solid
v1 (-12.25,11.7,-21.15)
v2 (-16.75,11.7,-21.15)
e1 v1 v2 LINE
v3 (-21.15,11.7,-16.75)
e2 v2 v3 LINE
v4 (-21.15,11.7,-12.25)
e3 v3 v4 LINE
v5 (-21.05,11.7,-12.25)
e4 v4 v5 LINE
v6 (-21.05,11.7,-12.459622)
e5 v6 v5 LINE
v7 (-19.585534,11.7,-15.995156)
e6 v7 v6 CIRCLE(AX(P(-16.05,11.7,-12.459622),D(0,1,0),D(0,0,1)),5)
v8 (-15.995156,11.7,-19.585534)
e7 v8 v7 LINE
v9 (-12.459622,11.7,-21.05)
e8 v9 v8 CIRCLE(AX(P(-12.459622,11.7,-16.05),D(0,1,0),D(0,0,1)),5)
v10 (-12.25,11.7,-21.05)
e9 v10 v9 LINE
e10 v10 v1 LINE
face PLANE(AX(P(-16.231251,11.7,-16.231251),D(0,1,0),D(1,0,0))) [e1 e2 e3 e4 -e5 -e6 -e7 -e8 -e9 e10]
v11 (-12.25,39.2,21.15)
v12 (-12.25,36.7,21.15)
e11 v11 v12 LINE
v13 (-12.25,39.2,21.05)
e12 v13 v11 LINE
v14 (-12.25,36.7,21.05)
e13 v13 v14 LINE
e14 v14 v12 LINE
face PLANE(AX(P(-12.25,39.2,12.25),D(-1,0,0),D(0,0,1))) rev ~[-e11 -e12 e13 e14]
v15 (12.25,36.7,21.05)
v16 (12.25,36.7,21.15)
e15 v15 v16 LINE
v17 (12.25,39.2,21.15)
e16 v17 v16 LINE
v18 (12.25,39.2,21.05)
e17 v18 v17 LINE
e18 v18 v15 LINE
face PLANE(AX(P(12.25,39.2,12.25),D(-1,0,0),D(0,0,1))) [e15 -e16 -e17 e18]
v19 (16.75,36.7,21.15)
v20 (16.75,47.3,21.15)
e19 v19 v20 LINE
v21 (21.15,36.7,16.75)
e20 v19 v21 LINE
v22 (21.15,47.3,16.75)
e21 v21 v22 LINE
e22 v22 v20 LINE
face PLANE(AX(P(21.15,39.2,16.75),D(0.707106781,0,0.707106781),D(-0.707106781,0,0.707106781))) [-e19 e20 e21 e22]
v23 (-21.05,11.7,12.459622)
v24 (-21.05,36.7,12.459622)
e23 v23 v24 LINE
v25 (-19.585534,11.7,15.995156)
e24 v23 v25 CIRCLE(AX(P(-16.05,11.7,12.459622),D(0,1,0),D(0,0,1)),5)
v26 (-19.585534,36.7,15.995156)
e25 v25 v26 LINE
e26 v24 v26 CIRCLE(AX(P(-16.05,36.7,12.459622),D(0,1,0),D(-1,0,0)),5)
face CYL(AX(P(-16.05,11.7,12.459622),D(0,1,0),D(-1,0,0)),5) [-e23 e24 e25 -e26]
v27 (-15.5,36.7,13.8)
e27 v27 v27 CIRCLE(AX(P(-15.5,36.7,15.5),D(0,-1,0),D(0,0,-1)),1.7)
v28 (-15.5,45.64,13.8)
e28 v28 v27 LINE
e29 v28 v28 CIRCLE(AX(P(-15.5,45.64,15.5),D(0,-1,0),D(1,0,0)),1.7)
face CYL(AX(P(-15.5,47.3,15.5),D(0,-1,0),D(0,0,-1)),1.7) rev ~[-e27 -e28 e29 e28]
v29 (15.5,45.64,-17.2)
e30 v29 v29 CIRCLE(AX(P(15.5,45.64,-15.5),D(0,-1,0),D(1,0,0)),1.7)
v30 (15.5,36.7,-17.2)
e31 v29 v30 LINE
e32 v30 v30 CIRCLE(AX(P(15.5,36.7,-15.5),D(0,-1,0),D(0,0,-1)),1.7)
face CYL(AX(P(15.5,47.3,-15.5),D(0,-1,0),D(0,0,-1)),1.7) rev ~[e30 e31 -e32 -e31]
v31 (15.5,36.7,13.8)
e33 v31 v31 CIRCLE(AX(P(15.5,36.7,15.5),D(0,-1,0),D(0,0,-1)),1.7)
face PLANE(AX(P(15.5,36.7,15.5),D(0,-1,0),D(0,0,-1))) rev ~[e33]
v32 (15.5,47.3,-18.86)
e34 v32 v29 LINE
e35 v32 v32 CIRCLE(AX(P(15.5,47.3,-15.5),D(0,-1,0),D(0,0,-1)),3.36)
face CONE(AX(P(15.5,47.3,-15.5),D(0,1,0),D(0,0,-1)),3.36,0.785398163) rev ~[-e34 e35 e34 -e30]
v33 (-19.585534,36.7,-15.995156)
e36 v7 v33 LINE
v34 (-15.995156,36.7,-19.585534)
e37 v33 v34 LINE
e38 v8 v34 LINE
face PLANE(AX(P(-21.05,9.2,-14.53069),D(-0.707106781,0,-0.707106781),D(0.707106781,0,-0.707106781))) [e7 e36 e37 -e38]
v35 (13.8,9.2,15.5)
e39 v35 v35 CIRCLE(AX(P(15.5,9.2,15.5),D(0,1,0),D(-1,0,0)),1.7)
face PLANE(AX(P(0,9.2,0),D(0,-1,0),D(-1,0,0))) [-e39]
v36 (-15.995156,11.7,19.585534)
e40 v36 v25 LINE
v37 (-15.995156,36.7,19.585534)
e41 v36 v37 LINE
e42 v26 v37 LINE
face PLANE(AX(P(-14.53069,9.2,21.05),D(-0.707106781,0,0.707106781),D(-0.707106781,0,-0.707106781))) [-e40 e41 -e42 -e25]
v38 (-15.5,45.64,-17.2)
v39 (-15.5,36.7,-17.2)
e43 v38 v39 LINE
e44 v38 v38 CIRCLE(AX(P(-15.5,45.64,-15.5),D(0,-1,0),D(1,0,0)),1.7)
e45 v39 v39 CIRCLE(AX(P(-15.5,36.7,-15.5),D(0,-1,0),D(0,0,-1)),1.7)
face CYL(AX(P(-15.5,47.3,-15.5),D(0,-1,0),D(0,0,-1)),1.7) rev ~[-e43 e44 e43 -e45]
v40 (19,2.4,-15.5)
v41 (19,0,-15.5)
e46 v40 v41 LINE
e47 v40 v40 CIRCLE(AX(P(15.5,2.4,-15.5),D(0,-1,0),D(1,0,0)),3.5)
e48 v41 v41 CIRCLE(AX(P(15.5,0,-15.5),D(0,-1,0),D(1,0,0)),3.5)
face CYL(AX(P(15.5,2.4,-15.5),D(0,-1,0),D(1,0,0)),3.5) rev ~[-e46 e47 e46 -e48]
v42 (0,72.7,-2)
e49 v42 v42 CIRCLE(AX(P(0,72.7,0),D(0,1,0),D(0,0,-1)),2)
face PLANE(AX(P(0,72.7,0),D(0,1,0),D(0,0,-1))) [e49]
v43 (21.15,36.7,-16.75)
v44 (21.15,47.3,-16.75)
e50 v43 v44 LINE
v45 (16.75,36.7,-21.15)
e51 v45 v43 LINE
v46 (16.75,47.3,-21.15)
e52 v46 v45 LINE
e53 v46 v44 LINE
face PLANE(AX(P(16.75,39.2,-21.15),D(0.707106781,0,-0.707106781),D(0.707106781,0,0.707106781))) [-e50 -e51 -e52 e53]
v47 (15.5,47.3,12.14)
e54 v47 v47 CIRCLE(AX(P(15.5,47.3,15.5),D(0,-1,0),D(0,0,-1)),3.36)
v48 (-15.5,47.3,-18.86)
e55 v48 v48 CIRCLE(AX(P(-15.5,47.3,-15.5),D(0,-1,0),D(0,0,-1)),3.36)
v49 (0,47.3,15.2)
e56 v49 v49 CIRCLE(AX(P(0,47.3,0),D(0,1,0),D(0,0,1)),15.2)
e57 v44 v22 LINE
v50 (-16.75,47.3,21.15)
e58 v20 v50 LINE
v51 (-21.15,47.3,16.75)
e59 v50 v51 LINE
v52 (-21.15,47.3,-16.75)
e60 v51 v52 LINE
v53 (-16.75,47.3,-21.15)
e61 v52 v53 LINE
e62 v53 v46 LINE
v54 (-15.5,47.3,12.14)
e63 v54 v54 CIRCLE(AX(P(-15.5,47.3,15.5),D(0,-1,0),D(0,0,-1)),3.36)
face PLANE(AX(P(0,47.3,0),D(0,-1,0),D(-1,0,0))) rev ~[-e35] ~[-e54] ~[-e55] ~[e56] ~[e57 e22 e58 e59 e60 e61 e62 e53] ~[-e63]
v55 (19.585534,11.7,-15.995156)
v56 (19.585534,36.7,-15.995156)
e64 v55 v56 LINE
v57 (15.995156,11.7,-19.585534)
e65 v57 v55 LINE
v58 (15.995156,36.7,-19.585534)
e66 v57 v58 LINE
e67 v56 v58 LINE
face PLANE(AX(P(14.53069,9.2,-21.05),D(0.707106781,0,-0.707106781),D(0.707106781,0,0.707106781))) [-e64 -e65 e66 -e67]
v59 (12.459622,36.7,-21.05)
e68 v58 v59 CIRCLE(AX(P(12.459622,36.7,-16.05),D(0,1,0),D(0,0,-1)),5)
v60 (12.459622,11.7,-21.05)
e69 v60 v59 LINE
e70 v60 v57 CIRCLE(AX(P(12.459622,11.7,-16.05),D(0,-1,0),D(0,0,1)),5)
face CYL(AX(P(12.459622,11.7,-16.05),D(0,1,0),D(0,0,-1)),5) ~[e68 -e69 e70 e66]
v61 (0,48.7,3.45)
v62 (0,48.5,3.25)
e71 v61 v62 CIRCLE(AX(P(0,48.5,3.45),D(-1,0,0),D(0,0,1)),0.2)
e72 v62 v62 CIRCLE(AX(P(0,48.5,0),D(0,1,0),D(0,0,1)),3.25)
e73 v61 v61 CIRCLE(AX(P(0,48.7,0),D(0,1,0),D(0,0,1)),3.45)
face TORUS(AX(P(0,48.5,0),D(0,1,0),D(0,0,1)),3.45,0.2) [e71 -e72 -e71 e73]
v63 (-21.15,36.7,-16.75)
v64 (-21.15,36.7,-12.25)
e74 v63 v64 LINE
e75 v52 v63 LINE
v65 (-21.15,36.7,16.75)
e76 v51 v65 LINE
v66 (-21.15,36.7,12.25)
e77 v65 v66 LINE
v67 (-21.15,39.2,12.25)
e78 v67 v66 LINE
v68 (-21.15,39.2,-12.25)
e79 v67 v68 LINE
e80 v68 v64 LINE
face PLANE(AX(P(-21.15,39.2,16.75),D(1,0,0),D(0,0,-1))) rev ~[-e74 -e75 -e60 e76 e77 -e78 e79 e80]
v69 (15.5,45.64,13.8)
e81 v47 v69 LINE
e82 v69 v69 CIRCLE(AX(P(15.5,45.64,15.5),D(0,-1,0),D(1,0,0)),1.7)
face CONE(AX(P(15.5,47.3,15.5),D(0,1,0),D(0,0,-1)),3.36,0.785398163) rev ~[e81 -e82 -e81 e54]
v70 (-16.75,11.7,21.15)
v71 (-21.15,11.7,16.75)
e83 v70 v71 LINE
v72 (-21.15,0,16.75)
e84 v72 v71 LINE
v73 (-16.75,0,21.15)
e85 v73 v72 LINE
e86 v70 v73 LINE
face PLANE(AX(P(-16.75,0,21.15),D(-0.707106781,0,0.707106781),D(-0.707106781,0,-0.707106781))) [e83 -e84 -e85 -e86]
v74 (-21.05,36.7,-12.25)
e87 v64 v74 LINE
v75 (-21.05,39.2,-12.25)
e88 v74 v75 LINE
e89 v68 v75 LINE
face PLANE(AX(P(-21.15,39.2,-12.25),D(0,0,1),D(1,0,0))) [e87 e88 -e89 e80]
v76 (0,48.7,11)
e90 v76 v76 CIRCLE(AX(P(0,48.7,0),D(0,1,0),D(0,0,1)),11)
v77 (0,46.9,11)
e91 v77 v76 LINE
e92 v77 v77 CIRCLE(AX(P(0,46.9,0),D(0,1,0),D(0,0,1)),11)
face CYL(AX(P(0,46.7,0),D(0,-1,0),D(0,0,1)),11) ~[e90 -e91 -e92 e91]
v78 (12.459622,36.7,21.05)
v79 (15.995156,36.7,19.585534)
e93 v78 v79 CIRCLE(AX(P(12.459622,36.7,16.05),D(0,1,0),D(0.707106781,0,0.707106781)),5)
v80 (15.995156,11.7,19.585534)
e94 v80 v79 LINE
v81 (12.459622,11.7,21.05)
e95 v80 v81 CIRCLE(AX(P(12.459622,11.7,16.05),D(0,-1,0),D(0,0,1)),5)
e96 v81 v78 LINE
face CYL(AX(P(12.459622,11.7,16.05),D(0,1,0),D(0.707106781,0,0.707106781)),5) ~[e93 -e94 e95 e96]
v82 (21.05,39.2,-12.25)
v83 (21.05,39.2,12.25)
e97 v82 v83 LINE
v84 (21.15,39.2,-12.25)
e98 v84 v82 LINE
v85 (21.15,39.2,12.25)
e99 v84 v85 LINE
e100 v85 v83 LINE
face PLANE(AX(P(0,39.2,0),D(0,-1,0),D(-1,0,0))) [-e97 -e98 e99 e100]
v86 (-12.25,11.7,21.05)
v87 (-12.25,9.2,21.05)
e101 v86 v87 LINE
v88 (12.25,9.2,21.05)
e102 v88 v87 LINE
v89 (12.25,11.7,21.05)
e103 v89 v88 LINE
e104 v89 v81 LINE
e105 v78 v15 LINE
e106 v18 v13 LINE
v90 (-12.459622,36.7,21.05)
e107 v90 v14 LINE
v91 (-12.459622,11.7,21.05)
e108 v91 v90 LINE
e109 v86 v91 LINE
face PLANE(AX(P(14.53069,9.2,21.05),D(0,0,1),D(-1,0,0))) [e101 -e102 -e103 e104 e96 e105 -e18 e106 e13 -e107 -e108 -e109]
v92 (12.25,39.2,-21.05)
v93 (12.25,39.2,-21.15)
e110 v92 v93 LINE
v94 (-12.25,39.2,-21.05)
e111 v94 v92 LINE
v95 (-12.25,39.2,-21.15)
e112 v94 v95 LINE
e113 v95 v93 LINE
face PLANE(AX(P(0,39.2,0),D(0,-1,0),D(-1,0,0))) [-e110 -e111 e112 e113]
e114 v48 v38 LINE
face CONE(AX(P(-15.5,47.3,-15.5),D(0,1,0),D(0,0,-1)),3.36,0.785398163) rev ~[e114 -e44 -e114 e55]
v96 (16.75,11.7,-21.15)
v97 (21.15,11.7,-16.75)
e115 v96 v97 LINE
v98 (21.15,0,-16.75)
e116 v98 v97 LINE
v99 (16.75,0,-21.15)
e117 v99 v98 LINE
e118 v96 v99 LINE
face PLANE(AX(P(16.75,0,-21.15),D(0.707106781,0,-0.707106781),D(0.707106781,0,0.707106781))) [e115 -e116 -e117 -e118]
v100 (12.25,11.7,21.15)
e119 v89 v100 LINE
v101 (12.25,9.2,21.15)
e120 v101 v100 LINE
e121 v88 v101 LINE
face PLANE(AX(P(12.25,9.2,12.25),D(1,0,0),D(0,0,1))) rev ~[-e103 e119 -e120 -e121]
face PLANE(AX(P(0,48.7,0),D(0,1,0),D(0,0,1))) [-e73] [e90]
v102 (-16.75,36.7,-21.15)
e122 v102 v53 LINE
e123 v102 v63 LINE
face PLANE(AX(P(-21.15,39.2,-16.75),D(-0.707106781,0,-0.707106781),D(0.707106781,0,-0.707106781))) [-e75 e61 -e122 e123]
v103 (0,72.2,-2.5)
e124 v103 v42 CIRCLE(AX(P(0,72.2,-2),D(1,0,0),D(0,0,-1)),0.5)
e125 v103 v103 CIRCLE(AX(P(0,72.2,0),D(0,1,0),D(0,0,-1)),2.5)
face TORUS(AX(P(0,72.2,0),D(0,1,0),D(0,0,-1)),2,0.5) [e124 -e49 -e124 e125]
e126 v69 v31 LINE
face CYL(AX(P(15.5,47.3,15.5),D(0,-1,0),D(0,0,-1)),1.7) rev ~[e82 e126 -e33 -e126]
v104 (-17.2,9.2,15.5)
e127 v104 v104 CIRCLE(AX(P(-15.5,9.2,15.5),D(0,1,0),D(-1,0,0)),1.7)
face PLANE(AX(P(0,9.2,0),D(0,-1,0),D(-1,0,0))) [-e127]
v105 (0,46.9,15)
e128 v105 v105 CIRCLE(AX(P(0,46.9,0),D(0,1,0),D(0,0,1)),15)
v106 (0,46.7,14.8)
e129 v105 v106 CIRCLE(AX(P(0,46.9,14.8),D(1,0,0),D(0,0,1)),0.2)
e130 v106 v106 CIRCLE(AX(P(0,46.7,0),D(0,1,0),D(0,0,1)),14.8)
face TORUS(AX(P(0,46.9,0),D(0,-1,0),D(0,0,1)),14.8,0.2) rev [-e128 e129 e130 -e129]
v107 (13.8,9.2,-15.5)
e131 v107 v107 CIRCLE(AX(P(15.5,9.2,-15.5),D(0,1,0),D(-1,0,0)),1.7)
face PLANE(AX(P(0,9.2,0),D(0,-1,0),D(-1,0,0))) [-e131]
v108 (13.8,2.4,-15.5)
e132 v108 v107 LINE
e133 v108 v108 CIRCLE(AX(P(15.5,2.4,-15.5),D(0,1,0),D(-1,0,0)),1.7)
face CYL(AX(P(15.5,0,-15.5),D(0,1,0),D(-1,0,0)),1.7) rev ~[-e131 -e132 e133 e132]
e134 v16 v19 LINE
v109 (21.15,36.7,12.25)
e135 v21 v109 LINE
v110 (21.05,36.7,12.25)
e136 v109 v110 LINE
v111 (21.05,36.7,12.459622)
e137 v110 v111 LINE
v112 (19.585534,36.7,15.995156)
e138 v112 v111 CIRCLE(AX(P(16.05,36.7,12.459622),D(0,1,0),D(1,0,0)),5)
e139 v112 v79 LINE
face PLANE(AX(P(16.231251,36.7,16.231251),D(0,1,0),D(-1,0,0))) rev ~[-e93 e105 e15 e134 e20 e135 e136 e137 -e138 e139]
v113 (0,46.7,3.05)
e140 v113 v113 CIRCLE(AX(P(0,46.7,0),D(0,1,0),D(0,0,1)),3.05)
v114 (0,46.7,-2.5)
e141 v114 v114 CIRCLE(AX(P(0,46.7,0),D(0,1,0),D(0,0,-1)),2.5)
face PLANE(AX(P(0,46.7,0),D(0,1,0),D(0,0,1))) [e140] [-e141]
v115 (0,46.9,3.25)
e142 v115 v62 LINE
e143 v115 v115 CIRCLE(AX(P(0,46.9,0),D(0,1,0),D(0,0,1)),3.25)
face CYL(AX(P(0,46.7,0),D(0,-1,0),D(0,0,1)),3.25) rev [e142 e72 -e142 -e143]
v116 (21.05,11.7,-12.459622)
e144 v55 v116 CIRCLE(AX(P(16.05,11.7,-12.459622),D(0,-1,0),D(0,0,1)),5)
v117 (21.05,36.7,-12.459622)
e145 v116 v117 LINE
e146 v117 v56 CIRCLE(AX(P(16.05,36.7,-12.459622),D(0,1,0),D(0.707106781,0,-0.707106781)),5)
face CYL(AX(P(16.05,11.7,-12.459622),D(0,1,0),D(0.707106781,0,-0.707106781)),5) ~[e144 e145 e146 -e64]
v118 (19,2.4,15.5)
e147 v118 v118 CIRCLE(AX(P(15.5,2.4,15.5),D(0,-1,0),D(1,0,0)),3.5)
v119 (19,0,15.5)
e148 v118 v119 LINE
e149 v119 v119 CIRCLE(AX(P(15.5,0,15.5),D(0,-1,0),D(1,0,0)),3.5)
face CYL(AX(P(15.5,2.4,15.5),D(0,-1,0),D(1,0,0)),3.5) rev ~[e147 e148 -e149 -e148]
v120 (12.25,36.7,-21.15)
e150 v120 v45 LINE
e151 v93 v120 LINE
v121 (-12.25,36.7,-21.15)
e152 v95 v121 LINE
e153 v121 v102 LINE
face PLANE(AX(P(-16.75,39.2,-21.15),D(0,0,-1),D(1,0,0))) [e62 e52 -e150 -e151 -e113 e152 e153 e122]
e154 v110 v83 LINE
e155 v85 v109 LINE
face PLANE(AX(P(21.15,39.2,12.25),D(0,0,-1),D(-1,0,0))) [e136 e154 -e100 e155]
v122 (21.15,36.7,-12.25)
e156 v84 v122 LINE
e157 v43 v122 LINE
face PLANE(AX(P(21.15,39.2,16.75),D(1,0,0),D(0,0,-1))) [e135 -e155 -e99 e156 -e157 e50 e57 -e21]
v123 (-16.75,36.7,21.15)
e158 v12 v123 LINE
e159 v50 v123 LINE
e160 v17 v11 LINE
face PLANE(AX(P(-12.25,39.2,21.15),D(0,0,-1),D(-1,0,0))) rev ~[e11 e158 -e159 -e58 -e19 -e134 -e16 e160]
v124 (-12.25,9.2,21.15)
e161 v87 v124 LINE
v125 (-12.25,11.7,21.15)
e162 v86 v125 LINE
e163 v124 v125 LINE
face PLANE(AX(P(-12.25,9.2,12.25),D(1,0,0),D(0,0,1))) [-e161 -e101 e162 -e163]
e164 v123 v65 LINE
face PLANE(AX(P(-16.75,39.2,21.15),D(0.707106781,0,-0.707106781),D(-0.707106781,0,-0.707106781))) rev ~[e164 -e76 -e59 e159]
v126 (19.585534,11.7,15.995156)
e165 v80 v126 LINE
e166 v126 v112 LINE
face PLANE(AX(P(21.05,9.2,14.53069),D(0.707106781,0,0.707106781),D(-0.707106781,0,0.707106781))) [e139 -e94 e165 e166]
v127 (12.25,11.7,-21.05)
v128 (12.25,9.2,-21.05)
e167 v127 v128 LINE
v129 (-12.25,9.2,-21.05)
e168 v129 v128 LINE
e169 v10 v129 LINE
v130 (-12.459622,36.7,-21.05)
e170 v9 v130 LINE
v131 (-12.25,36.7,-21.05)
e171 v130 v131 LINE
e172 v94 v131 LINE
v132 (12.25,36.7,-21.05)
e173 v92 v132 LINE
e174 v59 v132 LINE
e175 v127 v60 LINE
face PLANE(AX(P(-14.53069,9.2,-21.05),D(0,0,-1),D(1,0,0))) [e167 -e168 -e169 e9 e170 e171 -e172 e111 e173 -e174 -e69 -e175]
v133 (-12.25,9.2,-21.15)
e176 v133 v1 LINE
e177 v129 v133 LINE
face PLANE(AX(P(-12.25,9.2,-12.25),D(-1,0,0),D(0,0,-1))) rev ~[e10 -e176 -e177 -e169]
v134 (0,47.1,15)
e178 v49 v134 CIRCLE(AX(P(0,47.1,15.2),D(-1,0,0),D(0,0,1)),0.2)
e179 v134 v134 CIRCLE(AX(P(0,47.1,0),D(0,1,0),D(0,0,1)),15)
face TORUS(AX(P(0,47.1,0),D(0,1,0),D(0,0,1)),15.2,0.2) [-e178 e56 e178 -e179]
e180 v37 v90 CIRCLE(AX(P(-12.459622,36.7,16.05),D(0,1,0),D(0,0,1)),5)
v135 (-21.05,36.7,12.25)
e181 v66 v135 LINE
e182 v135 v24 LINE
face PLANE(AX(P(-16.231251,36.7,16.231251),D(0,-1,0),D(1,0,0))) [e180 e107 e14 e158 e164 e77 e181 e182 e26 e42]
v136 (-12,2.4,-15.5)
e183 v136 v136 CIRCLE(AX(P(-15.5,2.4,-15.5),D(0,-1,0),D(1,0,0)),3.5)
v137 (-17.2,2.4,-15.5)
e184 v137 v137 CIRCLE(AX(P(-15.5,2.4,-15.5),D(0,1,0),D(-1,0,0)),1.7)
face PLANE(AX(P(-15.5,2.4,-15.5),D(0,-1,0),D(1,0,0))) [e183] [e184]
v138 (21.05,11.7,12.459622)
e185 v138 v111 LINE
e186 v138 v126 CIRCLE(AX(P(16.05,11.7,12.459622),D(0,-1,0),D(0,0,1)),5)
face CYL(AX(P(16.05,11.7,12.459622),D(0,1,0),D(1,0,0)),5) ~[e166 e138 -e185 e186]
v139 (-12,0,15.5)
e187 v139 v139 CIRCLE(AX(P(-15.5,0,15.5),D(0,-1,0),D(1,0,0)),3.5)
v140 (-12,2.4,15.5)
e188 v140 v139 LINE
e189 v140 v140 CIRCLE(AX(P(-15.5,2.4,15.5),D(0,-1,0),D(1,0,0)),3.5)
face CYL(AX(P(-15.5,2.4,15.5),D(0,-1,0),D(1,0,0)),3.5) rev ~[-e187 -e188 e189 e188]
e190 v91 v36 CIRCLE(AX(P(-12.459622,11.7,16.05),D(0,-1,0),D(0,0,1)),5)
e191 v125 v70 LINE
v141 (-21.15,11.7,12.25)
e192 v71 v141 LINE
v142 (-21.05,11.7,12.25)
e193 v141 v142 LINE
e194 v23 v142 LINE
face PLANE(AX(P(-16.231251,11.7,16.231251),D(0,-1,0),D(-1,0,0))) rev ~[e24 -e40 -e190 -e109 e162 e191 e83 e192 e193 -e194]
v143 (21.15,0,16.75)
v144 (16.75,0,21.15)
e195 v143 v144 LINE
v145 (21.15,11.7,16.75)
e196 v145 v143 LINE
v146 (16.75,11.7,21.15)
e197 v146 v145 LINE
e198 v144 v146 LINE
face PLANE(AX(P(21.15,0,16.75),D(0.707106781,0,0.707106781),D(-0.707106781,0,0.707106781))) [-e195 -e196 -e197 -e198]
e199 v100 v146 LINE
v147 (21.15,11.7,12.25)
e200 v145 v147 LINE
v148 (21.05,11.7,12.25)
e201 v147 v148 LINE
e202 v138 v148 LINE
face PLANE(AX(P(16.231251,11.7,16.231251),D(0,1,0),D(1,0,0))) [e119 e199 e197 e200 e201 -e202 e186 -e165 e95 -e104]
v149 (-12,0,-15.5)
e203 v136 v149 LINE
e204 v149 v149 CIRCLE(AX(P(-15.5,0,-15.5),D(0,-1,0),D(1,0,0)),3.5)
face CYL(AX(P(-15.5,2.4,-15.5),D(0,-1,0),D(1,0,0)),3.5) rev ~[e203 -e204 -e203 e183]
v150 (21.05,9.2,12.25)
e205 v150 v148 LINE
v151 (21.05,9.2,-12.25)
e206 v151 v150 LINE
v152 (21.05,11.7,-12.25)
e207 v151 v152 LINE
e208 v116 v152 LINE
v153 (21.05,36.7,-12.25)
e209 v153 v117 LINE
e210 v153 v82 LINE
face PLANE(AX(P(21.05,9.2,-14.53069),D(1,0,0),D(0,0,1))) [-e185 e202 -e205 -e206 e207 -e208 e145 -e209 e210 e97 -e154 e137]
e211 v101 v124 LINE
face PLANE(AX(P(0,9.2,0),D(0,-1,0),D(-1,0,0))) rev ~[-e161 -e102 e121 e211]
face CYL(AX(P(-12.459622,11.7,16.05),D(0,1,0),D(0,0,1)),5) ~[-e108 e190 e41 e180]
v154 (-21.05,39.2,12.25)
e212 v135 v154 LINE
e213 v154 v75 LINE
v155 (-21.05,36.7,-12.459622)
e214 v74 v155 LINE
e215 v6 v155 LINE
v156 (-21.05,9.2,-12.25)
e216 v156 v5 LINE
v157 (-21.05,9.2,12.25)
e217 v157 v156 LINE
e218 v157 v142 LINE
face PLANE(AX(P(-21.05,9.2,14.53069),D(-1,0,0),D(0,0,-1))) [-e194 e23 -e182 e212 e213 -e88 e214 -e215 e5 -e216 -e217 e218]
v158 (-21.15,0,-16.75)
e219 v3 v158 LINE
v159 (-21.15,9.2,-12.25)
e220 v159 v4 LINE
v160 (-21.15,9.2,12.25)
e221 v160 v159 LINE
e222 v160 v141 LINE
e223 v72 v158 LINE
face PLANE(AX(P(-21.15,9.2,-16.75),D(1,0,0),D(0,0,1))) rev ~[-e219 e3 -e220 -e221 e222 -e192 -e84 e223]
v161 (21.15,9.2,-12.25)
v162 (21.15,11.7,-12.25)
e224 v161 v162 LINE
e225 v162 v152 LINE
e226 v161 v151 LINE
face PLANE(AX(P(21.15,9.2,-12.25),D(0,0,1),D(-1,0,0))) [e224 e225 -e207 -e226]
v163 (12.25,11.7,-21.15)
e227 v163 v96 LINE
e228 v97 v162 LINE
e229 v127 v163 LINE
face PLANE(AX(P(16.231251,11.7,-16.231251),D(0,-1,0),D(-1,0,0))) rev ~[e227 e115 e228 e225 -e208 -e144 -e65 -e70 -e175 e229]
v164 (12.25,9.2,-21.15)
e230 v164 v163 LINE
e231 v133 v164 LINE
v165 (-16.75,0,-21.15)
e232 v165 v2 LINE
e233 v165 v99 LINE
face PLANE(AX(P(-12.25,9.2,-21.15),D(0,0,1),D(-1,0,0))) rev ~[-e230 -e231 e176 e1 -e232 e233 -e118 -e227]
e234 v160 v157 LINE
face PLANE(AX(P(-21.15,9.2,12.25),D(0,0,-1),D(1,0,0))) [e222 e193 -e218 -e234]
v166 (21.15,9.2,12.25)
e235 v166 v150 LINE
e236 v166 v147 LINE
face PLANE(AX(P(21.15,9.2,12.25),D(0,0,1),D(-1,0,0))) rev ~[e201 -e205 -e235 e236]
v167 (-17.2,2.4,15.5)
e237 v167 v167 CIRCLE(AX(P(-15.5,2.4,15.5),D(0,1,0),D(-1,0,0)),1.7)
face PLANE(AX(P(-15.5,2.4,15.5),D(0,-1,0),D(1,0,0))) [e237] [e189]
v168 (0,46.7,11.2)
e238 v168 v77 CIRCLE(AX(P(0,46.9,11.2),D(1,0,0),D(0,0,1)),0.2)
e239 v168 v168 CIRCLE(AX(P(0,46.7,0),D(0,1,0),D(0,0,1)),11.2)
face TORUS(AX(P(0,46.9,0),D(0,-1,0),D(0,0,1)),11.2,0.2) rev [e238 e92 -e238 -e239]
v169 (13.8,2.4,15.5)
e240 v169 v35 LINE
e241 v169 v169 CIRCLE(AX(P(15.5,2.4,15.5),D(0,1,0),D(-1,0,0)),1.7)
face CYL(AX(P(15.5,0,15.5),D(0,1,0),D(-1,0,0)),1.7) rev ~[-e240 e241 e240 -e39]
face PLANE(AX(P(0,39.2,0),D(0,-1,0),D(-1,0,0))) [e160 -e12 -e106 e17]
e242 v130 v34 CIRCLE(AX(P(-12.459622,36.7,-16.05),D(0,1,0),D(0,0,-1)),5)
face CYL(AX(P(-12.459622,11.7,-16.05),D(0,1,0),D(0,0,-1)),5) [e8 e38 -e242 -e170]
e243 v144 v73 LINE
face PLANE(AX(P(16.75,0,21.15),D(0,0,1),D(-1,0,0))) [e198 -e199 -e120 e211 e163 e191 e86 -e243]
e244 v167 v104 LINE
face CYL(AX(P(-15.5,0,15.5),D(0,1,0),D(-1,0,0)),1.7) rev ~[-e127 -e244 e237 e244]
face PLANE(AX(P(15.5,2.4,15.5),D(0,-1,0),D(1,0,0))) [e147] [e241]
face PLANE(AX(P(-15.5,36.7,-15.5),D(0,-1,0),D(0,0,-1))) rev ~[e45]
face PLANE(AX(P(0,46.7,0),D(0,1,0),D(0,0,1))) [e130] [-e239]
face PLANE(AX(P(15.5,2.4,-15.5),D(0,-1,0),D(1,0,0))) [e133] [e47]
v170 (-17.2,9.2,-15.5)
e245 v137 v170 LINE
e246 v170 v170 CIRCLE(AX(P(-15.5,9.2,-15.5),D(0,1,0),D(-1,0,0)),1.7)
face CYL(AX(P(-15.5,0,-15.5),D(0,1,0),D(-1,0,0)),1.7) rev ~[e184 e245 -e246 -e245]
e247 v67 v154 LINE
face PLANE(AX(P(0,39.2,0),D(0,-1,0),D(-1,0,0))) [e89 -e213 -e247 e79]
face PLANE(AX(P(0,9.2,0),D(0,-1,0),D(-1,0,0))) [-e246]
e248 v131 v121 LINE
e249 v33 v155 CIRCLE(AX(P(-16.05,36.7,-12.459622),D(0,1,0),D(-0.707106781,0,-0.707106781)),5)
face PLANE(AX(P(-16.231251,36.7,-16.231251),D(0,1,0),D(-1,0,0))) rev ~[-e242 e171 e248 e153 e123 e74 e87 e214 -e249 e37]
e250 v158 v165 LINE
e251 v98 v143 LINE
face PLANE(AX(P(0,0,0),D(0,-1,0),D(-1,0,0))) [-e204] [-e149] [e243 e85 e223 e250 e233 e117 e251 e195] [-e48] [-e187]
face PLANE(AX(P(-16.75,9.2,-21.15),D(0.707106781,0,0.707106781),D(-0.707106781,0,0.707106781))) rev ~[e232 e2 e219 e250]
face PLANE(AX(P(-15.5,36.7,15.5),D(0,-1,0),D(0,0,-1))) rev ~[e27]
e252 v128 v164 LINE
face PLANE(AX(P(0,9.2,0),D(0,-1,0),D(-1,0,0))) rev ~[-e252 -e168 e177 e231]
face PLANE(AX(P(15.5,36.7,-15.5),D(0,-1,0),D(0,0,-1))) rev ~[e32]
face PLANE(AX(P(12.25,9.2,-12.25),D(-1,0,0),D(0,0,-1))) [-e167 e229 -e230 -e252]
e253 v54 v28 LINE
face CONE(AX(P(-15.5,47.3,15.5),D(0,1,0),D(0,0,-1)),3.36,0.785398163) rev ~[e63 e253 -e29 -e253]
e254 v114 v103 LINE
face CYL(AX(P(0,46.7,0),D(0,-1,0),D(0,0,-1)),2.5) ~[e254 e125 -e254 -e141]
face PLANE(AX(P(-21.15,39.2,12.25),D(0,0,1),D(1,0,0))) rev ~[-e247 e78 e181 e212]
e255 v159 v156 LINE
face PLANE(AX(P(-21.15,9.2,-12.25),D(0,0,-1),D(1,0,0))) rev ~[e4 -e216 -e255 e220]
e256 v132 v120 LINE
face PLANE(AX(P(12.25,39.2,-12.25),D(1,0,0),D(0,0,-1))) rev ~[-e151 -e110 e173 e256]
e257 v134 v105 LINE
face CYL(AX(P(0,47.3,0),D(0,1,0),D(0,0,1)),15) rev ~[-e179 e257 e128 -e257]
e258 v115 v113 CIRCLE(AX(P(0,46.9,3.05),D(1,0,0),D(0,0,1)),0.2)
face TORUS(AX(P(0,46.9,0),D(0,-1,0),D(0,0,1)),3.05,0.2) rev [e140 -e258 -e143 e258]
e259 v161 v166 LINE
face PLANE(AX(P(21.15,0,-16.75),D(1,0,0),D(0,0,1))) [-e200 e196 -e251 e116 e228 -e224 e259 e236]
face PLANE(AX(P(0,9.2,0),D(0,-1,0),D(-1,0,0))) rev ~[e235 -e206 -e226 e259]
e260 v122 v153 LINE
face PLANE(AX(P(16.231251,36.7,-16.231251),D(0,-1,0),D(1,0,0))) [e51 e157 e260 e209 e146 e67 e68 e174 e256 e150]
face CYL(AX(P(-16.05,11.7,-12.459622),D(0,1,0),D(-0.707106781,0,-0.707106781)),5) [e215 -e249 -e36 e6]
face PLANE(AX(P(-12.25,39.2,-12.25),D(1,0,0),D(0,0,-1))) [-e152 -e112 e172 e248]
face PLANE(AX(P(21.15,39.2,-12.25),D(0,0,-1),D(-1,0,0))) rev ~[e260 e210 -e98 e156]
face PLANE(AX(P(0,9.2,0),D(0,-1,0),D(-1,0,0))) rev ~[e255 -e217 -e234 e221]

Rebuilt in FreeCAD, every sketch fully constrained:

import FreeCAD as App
import Part
import Sketcher
from FreeCAD import Vector


def edges_at(feature, points):
    """Names of the edges that pass closest to the given points."""
    edges = feature.Shape.Edges
    near = lambda p: min(range(len(edges)), key=lambda i: edges[i].distToShape(Part.Vertex(*p))[0])
    return sorted({f"Edge{near(p) + 1}" for p in points})

doc = App.newDocument("Part")
params = doc.addObject("Spreadsheet::Sheet", "Params")
for row, (alias, value) in enumerate([
    ("sketch1_width", "33.5 mm"),
    ("pad1_length", "9.2 mm"),
    ("sketch2_width", "4.5 mm"),
    ("sketch2_width2", "8.9 mm"),
    ("pad2_length", "2.5 mm"),
    ("sketch3_diameter", "3.4 mm"),
    ("hole_diameter", "3.4 mm"),
    ("hole_cbore_diameter", "7 mm"),
    ("hole_cbore_depth", "2.4 mm"),
    ("pad3_length", "30 mm"),
    ("fillet_radius", "5 mm"),
    ("sketch5_width", "33.5 mm"),
    ("pad4_length", "8.1 mm"),
    ("sketch6_width", "4.5 mm"),
    ("sketch6_width2", "8.9 mm"),
    ("pad5_length", "2.5 mm"),
    ("sketch7_diameter", "3.4 mm"),
    ("hole2_diameter", "3.4 mm"),
    ("hole2_depth", "10.6 mm"),
    ("hole2_csink_diameter", "6.72 mm"),
    ("sketch8_diameter", "30 mm"),
    ("pocket1_length", "0.6 mm"),
    ("sketch9_diameter", "22 mm"),
    ("sketch9_diameter2", "6.5 mm"),
    ("pad6_length", "2 mm"),
    ("fillet2_radius", "0.2 mm"),
    ("sketch10_diameter", "5 mm"),
    ("pad7_length", "26 mm"),
    ("fillet3_radius", "0.5 mm"),
], start=1):
    params.set(f"A{row}", alias)
    params.set(f"B{row}", "=" + value)
    params.setAlias(f"B{row}", alias)

body = doc.addObject("PartDesign::Body", "Body")

# Sketch on XZ plane
sketch1 = body.newObject("Sketcher::SketchObject", "Sketch")
sketch1.AttachmentSupport = (doc.getObject("XZ_Plane"), [""])
sketch1.MapMode = "FlatFace"
sketch1.addGeometry([
    Part.LineSegment(Vector(16.75, -21.15, 0), Vector(-16.75, -21.15, 0)),  # 0
    Part.LineSegment(Vector(-16.75, -21.15, 0), Vector(-21.15, -16.75, 0)),  # 1
    Part.LineSegment(Vector(-21.15, -16.75, 0), Vector(-21.15, 16.75, 0)),  # 2
    Part.LineSegment(Vector(-21.15, 16.75, 0), Vector(-16.75, 21.15, 0)),  # 3
    Part.LineSegment(Vector(-16.75, 21.15, 0), Vector(16.75, 21.15, 0)),  # 4
    Part.LineSegment(Vector(16.75, 21.15, 0), Vector(21.15, 16.75, 0)),  # 5
    Part.LineSegment(Vector(21.15, 16.75, 0), Vector(21.15, -16.75, 0)),  # 6
    Part.LineSegment(Vector(21.15, -16.75, 0), Vector(16.75, -21.15, 0)),  # 7
], False)
sketch1.addConstraint([
    Sketcher.Constraint("Coincident", 0, 2, 1, 1),
    Sketcher.Constraint("Coincident", 1, 2, 2, 1),
    Sketcher.Constraint("Coincident", 2, 2, 3, 1),
    Sketcher.Constraint("Coincident", 3, 2, 4, 1),
    Sketcher.Constraint("Coincident", 4, 2, 5, 1),
    Sketcher.Constraint("Coincident", 5, 2, 6, 1),
    Sketcher.Constraint("Coincident", 6, 2, 7, 1),
    Sketcher.Constraint("Coincident", 7, 2, 0, 1),
    Sketcher.Constraint("Horizontal", 0),
    Sketcher.Constraint("Vertical", 2),
    Sketcher.Constraint("Horizontal", 4),
    Sketcher.Constraint("Vertical", 6),
    Sketcher.Constraint("Symmetric", 0, 2, 4, 2, -1, 1),
    Sketcher.Constraint("Symmetric", 1, 2, 5, 2, -1, 1),
    Sketcher.Constraint("Perpendicular", 1, 3),
    Sketcher.Constraint("Perpendicular", 5, 7),
    Sketcher.Constraint("Horizontal", 2, 2, 5, 2),
    Sketcher.Constraint("Horizontal", 1, 2, 6, 2),
    Sketcher.Constraint("Vertical", 0, 2, 3, 2),
    Sketcher.Constraint("Equal", 4, 2),
    Sketcher.Constraint("DistanceX", 0, 2, 0, 1, 33.5),
    Sketcher.Constraint("DistanceX", 1, 2, 0, 2, 4.4),
])
sketch1.setExpression("Constraints[20]", "Params.sketch1_width")
pad1 = body.newObject("PartDesign::Pad", "Pad")
pad1.Profile = sketch1
pad1.setExpression("Length", "Params.pad1_length")
pad1.Reversed = True

# Sketch on XZ plane
sketch2 = body.newObject("Sketcher::SketchObject", "Sketch001")
sketch2.AttachmentSupport = (doc.getObject("XZ_Plane"), [""])
sketch2.MapMode = "FlatFace"
sketch2.AttachmentOffset = App.Placement(Vector(0, 0, -9.2), App.Rotation())
sketch2.addGeometry([
    Part.LineSegment(Vector(-12.25, -12.25, 0), Vector(-12.25, -21.15, 0)),  # 0
    Part.LineSegment(Vector(-12.25, -21.15, 0), Vector(-16.75, -21.15, 0)),  # 1
    Part.LineSegment(Vector(-16.75, -21.15, 0), Vector(-21.15, -16.75, 0)),  # 2
    Part.LineSegment(Vector(-21.15, -16.75, 0), Vector(-21.15, -12.25, 0)),  # 3
    Part.LineSegment(Vector(-21.15, -12.25, 0), Vector(-12.25, -12.25, 0)),  # 4
    Part.LineSegment(Vector(16.75, -21.15, 0), Vector(12.25, -21.15, 0)),  # 5
    Part.LineSegment(Vector(12.25, -21.15, 0), Vector(12.25, -12.25, 0)),  # 6
    Part.LineSegment(Vector(12.25, -12.25, 0), Vector(21.15, -12.25, 0)),  # 7
    Part.LineSegment(Vector(21.15, -12.25, 0), Vector(21.15, -16.75, 0)),  # 8
    Part.LineSegment(Vector(21.15, -16.75, 0), Vector(16.75, -21.15, 0)),  # 9
    Part.LineSegment(Vector(12.25, 12.25, 0), Vector(12.25, 21.15, 0)),  # 10
    Part.LineSegment(Vector(12.25, 21.15, 0), Vector(16.75, 21.15, 0)),  # 11
    Part.LineSegment(Vector(16.75, 21.15, 0), Vector(21.15, 16.75, 0)),  # 12
    Part.LineSegment(Vector(21.15, 16.75, 0), Vector(21.15, 12.25, 0)),  # 13
    Part.LineSegment(Vector(21.15, 12.25, 0), Vector(12.25, 12.25, 0)),  # 14
    Part.LineSegment(Vector(-16.75, 21.15, 0), Vector(-12.25, 21.15, 0)),  # 15
    Part.LineSegment(Vector(-12.25, 21.15, 0), Vector(-12.25, 12.25, 0)),  # 16
    Part.LineSegment(Vector(-12.25, 12.25, 0), Vector(-21.15, 12.25, 0)),  # 17
    Part.LineSegment(Vector(-21.15, 12.25, 0), Vector(-21.15, 16.75, 0)),  # 18
    Part.LineSegment(Vector(-21.15, 16.75, 0), Vector(-16.75, 21.15, 0)),  # 19
], False)
sketch2.addConstraint([
    Sketcher.Constraint("Coincident", 0, 2, 1, 1),
    Sketcher.Constraint("Coincident", 1, 2, 2, 1),
    Sketcher.Constraint("Coincident", 2, 2, 3, 1),
    Sketcher.Constraint("Coincident", 3, 2, 4, 1),
    Sketcher.Constraint("Coincident", 4, 2, 0, 1),
    Sketcher.Constraint("Coincident", 5, 2, 6, 1),
    Sketcher.Constraint("Coincident", 6, 2, 7, 1),
    Sketcher.Constraint("Coincident", 7, 2, 8, 1),
    Sketcher.Constraint("Coincident", 8, 2, 9, 1),
    Sketcher.Constraint("Coincident", 9, 2, 5, 1),
    Sketcher.Constraint("Coincident", 10, 2, 11, 1),
    Sketcher.Constraint("Coincident", 11, 2, 12, 1),
    Sketcher.Constraint("Coincident", 12, 2, 13, 1),
    Sketcher.Constraint("Coincident", 13, 2, 14, 1),
    Sketcher.Constraint("Coincident", 14, 2, 10, 1),
    Sketcher.Constraint("Coincident", 15, 2, 16, 1),
    Sketcher.Constraint("Coincident", 16, 2, 17, 1),
    Sketcher.Constraint("Coincident", 17, 2, 18, 1),
    Sketcher.Constraint("Coincident", 18, 2, 19, 1),
    Sketcher.Constraint("Coincident", 19, 2, 15, 1),
    Sketcher.Constraint("Vertical", 0),
    Sketcher.Constraint("Horizontal", 1),
    Sketcher.Constraint("Vertical", 3),
    Sketcher.Constraint("Horizontal", 4),
    Sketcher.Constraint("Horizontal", 5),
    Sketcher.Constraint("Vertical", 6),
    Sketcher.Constraint("Horizontal", 7),
    Sketcher.Constraint("Vertical", 8),
    Sketcher.Constraint("Vertical", 10),
    Sketcher.Constraint("Horizontal", 11),
    Sketcher.Constraint("Vertical", 13),
    Sketcher.Constraint("Horizontal", 14),
    Sketcher.Constraint("Horizontal", 15),
    Sketcher.Constraint("Vertical", 16),
    Sketcher.Constraint("Horizontal", 17),
    Sketcher.Constraint("Vertical", 18),
    Sketcher.Constraint("Symmetric", 0, 2, 10, 2, -1, 1),
    Sketcher.Constraint("Symmetric", 2, 2, 12, 2, -1, 1),
    Sketcher.Constraint("Symmetric", 5, 2, 15, 2, -1, 1),
    Sketcher.Constraint("Symmetric", 7, 2, 17, 2, -1, 1),
    Sketcher.Constraint("Symmetric", 0, 2, 5, 2, -2),
    Sketcher.Constraint("Symmetric", 3, 2, 7, 2, -2),
    Sketcher.Constraint("Perpendicular", 2, 9),
    Sketcher.Constraint("Perpendicular", 9, 12),
    Sketcher.Constraint("Perpendicular", 12, 19),
    Sketcher.Constraint("Horizontal", 2, 2, 8, 2),
    Sketcher.Constraint("Horizontal", 14, 2, 16, 2),
    Sketcher.Constraint("Horizontal", 12, 2, 18, 2),
    Sketcher.Constraint("Vertical", 9, 2, 11, 2),
    Sketcher.Constraint("Equal", 17, 0),
    Sketcher.Constraint("DistanceX", 1, 2, 1, 1, 4.5),
    Sketcher.Constraint("DistanceX", 4, 1, 4, 2, 8.9),
    Sketcher.Constraint("DistanceX", 1, 2, 5, 2, 29.0),
    Sketcher.Constraint("DistanceY", 7, 2, 12, 2, 29.0),
])
sketch2.setExpression("Constraints[50]", "Params.sketch2_width")
sketch2.setExpression("Constraints[51]", "Params.sketch2_width2")
pad2 = body.newObject("PartDesign::Pad", "Pad001")
pad2.Profile = sketch2
pad2.setExpression("Length", "Params.pad2_length")
pad2.Reversed = True

# Sketch on XZ plane
sketch3 = body.newObject("Sketcher::SketchObject", "Sketch002")
sketch3.AttachmentSupport = (doc.getObject("XZ_Plane"), [""])
sketch3.MapMode = "FlatFace"
sketch3.addGeometry([
    Part.Circle(Vector(15.5, 15.5, 0), Vector(0, 0, 1), 1.7),
    Part.Circle(Vector(15.5, -15.5, 0), Vector(0, 0, 1), 1.7),
    Part.Circle(Vector(-15.5, 15.5, 0), Vector(0, 0, 1), 1.7),
    Part.Circle(Vector(-15.5, -15.5, 0), Vector(0, 0, 1), 1.7),
], False)
sketch3.addConstraint([
    Sketcher.Constraint("Equal", 0, 1),
    Sketcher.Constraint("Equal", 1, 2),
    Sketcher.Constraint("Equal", 2, 3),
    Sketcher.Constraint("Symmetric", 1, 3, 2, 3, -1, 1),
    Sketcher.Constraint("Symmetric", 0, 3, 3, 3, -1, 1),
    Sketcher.Constraint("Symmetric", 0, 3, 2, 3, -2),
    Sketcher.Constraint("Diameter", 0, 3.4),
    Sketcher.Constraint("DistanceY", 1, 3, 0, 3, 31.0),
    Sketcher.Constraint("DistanceX", 2, 3, 0, 3, 31.0),
])
sketch3.setExpression("Constraints[6]", "Params.sketch3_diameter")
doc.recompute()
hole = body.newObject("PartDesign::Hole", "Hole")
hole.Profile = sketch3
hole.ThreadType = "None"
hole.setExpression("Diameter", "Params.hole_diameter")
hole.DepthType = "ThroughAll"
hole.HoleCutType = "Counterbore"
hole.setExpression("HoleCutDiameter", "Params.hole_cbore_diameter")
hole.setExpression("HoleCutDepth", "Params.hole_cbore_depth")

# Sketch on XZ plane
sketch4 = body.newObject("Sketcher::SketchObject", "Sketch003")
sketch4.AttachmentSupport = (doc.getObject("XZ_Plane"), [""])
sketch4.MapMode = "FlatFace"
sketch4.AttachmentOffset = App.Placement(Vector(0, 0, -9.2), App.Rotation())
sketch4.addGeometry([
    Part.LineSegment(Vector(14.53069, -21.05, 0), Vector(-14.53069, -21.05, 0)),  # 0
    Part.LineSegment(Vector(-14.53069, -21.05, 0), Vector(-21.05, -14.53069, 0)),  # 1
    Part.LineSegment(Vector(-21.05, -14.53069, 0), Vector(-21.05, 14.53069, 0)),  # 2
    Part.LineSegment(Vector(-21.05, 14.53069, 0), Vector(-14.53069, 21.05, 0)),  # 3
    Part.LineSegment(Vector(-14.53069, 21.05, 0), Vector(14.53069, 21.05, 0)),  # 4
    Part.LineSegment(Vector(14.53069, 21.05, 0), Vector(21.05, 14.53069, 0)),  # 5
    Part.LineSegment(Vector(21.05, 14.53069, 0), Vector(21.05, -14.53069, 0)),  # 6
    Part.LineSegment(Vector(21.05, -14.53069, 0), Vector(14.53069, -21.05, 0)),  # 7
], False)
sketch4.addConstraint([
    Sketcher.Constraint("Coincident", 0, 2, 1, 1),
    Sketcher.Constraint("Coincident", 1, 2, 2, 1),
    Sketcher.Constraint("Coincident", 2, 2, 3, 1),
    Sketcher.Constraint("Coincident", 3, 2, 4, 1),
    Sketcher.Constraint("Coincident", 4, 2, 5, 1),
    Sketcher.Constraint("Coincident", 5, 2, 6, 1),
    Sketcher.Constraint("Coincident", 6, 2, 7, 1),
    Sketcher.Constraint("Coincident", 7, 2, 0, 1),
    Sketcher.Constraint("Horizontal", 0),
    Sketcher.Constraint("Vertical", 2),
    Sketcher.Constraint("Horizontal", 4),
    Sketcher.Constraint("Vertical", 6),
    Sketcher.Constraint("Symmetric", 0, 2, 4, 2, -1, 1),
    Sketcher.Constraint("Symmetric", 1, 2, 5, 2, -1, 1),
    Sketcher.Constraint("Perpendicular", 1, 3),
    Sketcher.Constraint("Perpendicular", 5, 7),
    Sketcher.Constraint("Horizontal", 2, 2, 5, 2),
    Sketcher.Constraint("Horizontal", 1, 2, 6, 2),
    Sketcher.Constraint("Vertical", 0, 2, 3, 2),
    Sketcher.Constraint("Equal", 4, 2),
    Sketcher.Constraint("DistanceY", 0, 2, 3, 2, 42.1),
    Sketcher.Constraint("DistanceX", 0, 2, 0, 1, 29.06138),
])
pad3 = body.newObject("PartDesign::Pad", "Pad002")
pad3.Profile = sketch4
pad3.setExpression("Length", "Params.pad3_length")
pad3.Reversed = True
doc.recompute()

fillet = body.newObject("PartDesign::Fillet", "Fillet")
fillet.Base = (pad3, edges_at(pad3, [
    (21.05, 25.45, -14.531),
    (14.531, 25.45, -21.05),
    (21.05, 25.45, 14.531),
    (-21.05, 25.45, -14.531),
    (-21.05, 25.45, 14.531),
    (-14.531, 25.45, 21.05),
    (-14.531, 25.45, -21.05),
    (14.531, 25.45, 21.05),
]))
fillet.setExpression("Radius", "Params.fillet_radius")

# Sketch on XZ plane
sketch5 = body.newObject("Sketcher::SketchObject", "Sketch004")
sketch5.AttachmentSupport = (doc.getObject("XZ_Plane"), [""])
sketch5.MapMode = "FlatFace"
sketch5.AttachmentOffset = App.Placement(Vector(0, 0, -39.2), App.Rotation())
sketch5.addGeometry([
    Part.LineSegment(Vector(16.75, -21.15, 0), Vector(-16.75, -21.15, 0)),  # 0
    Part.LineSegment(Vector(-16.75, -21.15, 0), Vector(-21.15, -16.75, 0)),  # 1
    Part.LineSegment(Vector(-21.15, -16.75, 0), Vector(-21.15, 16.75, 0)),  # 2
    Part.LineSegment(Vector(-21.15, 16.75, 0), Vector(-16.75, 21.15, 0)),  # 3
    Part.LineSegment(Vector(-16.75, 21.15, 0), Vector(16.75, 21.15, 0)),  # 4
    Part.LineSegment(Vector(16.75, 21.15, 0), Vector(21.15, 16.75, 0)),  # 5
    Part.LineSegment(Vector(21.15, 16.75, 0), Vector(21.15, -16.75, 0)),  # 6
    Part.LineSegment(Vector(21.15, -16.75, 0), Vector(16.75, -21.15, 0)),  # 7
], False)
sketch5.addConstraint([
    Sketcher.Constraint("Coincident", 0, 2, 1, 1),
    Sketcher.Constraint("Coincident", 1, 2, 2, 1),
    Sketcher.Constraint("Coincident", 2, 2, 3, 1),
    Sketcher.Constraint("Coincident", 3, 2, 4, 1),
    Sketcher.Constraint("Coincident", 4, 2, 5, 1),
    Sketcher.Constraint("Coincident", 5, 2, 6, 1),
    Sketcher.Constraint("Coincident", 6, 2, 7, 1),
    Sketcher.Constraint("Coincident", 7, 2, 0, 1),
    Sketcher.Constraint("Horizontal", 0),
    Sketcher.Constraint("Vertical", 2),
    Sketcher.Constraint("Horizontal", 4),
    Sketcher.Constraint("Vertical", 6),
    Sketcher.Constraint("Symmetric", 0, 2, 4, 2, -1, 1),
    Sketcher.Constraint("Symmetric", 1, 2, 5, 2, -1, 1),
    Sketcher.Constraint("Perpendicular", 1, 3),
    Sketcher.Constraint("Perpendicular", 5, 7),
    Sketcher.Constraint("Horizontal", 2, 2, 5, 2),
    Sketcher.Constraint("Horizontal", 1, 2, 6, 2),
    Sketcher.Constraint("Vertical", 0, 2, 3, 2),
    Sketcher.Constraint("Equal", 4, 2),
    Sketcher.Constraint("DistanceX", 0, 2, 0, 1, 33.5),
    Sketcher.Constraint("DistanceX", 1, 2, 0, 2, 4.4),
])
sketch5.setExpression("Constraints[20]", "Params.sketch5_width")
pad4 = body.newObject("PartDesign::Pad", "Pad003")
pad4.Profile = sketch5
pad4.setExpression("Length", "Params.pad4_length")
pad4.Reversed = True

# Sketch on XZ plane
sketch6 = body.newObject("Sketcher::SketchObject", "Sketch005")
sketch6.AttachmentSupport = (doc.getObject("XZ_Plane"), [""])
sketch6.MapMode = "FlatFace"
sketch6.AttachmentOffset = App.Placement(Vector(0, 0, -39.2), App.Rotation())
sketch6.addGeometry([
    Part.LineSegment(Vector(-12.25, 12.25, 0), Vector(-12.25, 21.15, 0)),  # 0
    Part.LineSegment(Vector(-12.25, 21.15, 0), Vector(-16.75, 21.15, 0)),  # 1
    Part.LineSegment(Vector(-16.75, 21.15, 0), Vector(-21.15, 16.75, 0)),  # 2
    Part.LineSegment(Vector(-21.15, 16.75, 0), Vector(-21.15, 12.25, 0)),  # 3
    Part.LineSegment(Vector(-21.15, 12.25, 0), Vector(-12.25, 12.25, 0)),  # 4
    Part.LineSegment(Vector(16.75, 21.15, 0), Vector(12.25, 21.15, 0)),  # 5
    Part.LineSegment(Vector(12.25, 21.15, 0), Vector(12.25, 12.25, 0)),  # 6
    Part.LineSegment(Vector(12.25, 12.25, 0), Vector(21.15, 12.25, 0)),  # 7
    Part.LineSegment(Vector(21.15, 12.25, 0), Vector(21.15, 16.75, 0)),  # 8
    Part.LineSegment(Vector(21.15, 16.75, 0), Vector(16.75, 21.15, 0)),  # 9
    Part.LineSegment(Vector(12.25, -12.25, 0), Vector(12.25, -21.15, 0)),  # 10
    Part.LineSegment(Vector(12.25, -21.15, 0), Vector(16.75, -21.15, 0)),  # 11
    Part.LineSegment(Vector(16.75, -21.15, 0), Vector(21.15, -16.75, 0)),  # 12
    Part.LineSegment(Vector(21.15, -16.75, 0), Vector(21.15, -12.25, 0)),  # 13
    Part.LineSegment(Vector(21.15, -12.25, 0), Vector(12.25, -12.25, 0)),  # 14
    Part.LineSegment(Vector(-16.75, -21.15, 0), Vector(-12.25, -21.15, 0)),  # 15
    Part.LineSegment(Vector(-12.25, -21.15, 0), Vector(-12.25, -12.25, 0)),  # 16
    Part.LineSegment(Vector(-12.25, -12.25, 0), Vector(-21.15, -12.25, 0)),  # 17
    Part.LineSegment(Vector(-21.15, -12.25, 0), Vector(-21.15, -16.75, 0)),  # 18
    Part.LineSegment(Vector(-21.15, -16.75, 0), Vector(-16.75, -21.15, 0)),  # 19
], False)
sketch6.addConstraint([
    Sketcher.Constraint("Coincident", 0, 2, 1, 1),
    Sketcher.Constraint("Coincident", 1, 2, 2, 1),
    Sketcher.Constraint("Coincident", 2, 2, 3, 1),
    Sketcher.Constraint("Coincident", 3, 2, 4, 1),
    Sketcher.Constraint("Coincident", 4, 2, 0, 1),
    Sketcher.Constraint("Coincident", 5, 2, 6, 1),
    Sketcher.Constraint("Coincident", 6, 2, 7, 1),
    Sketcher.Constraint("Coincident", 7, 2, 8, 1),
    Sketcher.Constraint("Coincident", 8, 2, 9, 1),
    Sketcher.Constraint("Coincident", 9, 2, 5, 1),
    Sketcher.Constraint("Coincident", 10, 2, 11, 1),
    Sketcher.Constraint("Coincident", 11, 2, 12, 1),
    Sketcher.Constraint("Coincident", 12, 2, 13, 1),
    Sketcher.Constraint("Coincident", 13, 2, 14, 1),
    Sketcher.Constraint("Coincident", 14, 2, 10, 1),
    Sketcher.Constraint("Coincident", 15, 2, 16, 1),
    Sketcher.Constraint("Coincident", 16, 2, 17, 1),
    Sketcher.Constraint("Coincident", 17, 2, 18, 1),
    Sketcher.Constraint("Coincident", 18, 2, 19, 1),
    Sketcher.Constraint("Coincident", 19, 2, 15, 1),
    Sketcher.Constraint("Vertical", 0),
    Sketcher.Constraint("Horizontal", 1),
    Sketcher.Constraint("Vertical", 3),
    Sketcher.Constraint("Horizontal", 4),
    Sketcher.Constraint("Horizontal", 5),
    Sketcher.Constraint("Vertical", 6),
    Sketcher.Constraint("Horizontal", 7),
    Sketcher.Constraint("Vertical", 8),
    Sketcher.Constraint("Vertical", 10),
    Sketcher.Constraint("Horizontal", 11),
    Sketcher.Constraint("Vertical", 13),
    Sketcher.Constraint("Horizontal", 14),
    Sketcher.Constraint("Horizontal", 15),
    Sketcher.Constraint("Vertical", 16),
    Sketcher.Constraint("Horizontal", 17),
    Sketcher.Constraint("Vertical", 18),
    Sketcher.Constraint("Symmetric", 0, 2, 10, 2, -1, 1),
    Sketcher.Constraint("Symmetric", 2, 2, 12, 2, -1, 1),
    Sketcher.Constraint("Symmetric", 5, 2, 15, 2, -1, 1),
    Sketcher.Constraint("Symmetric", 7, 2, 17, 2, -1, 1),
    Sketcher.Constraint("Symmetric", 0, 2, 5, 2, -2),
    Sketcher.Constraint("Symmetric", 3, 2, 7, 2, -2),
    Sketcher.Constraint("Perpendicular", 2, 9),
    Sketcher.Constraint("Perpendicular", 9, 12),
    Sketcher.Constraint("Perpendicular", 12, 19),
    Sketcher.Constraint("Horizontal", 2, 2, 8, 2),
    Sketcher.Constraint("Horizontal", 14, 2, 16, 2),
    Sketcher.Constraint("Horizontal", 12, 2, 18, 2),
    Sketcher.Constraint("Vertical", 9, 2, 11, 2),
    Sketcher.Constraint("Equal", 17, 0),
    Sketcher.Constraint("DistanceX", 1, 2, 1, 1, 4.5),
    Sketcher.Constraint("DistanceX", 4, 1, 4, 2, 8.9),
    Sketcher.Constraint("DistanceX", 1, 2, 5, 2, 29.0),
    Sketcher.Constraint("DistanceY", 12, 2, 7, 2, 29.0),
])
sketch6.setExpression("Constraints[50]", "Params.sketch6_width")
sketch6.setExpression("Constraints[51]", "Params.sketch6_width2")
pad5 = body.newObject("PartDesign::Pad", "Pad004")
pad5.Profile = sketch6
pad5.setExpression("Length", "Params.pad5_length")

# Sketch on XZ plane
sketch7 = body.newObject("Sketcher::SketchObject", "Sketch006")
sketch7.AttachmentSupport = (doc.getObject("XZ_Plane"), [""])
sketch7.MapMode = "FlatFace"
sketch7.AttachmentOffset = App.Placement(Vector(0, 0, -47.3), App.Rotation())
sketch7.addGeometry([
    Part.Circle(Vector(-15.5, -15.5, 0), Vector(0, 0, 1), 1.7),
    Part.Circle(Vector(15.5, -15.5, 0), Vector(0, 0, 1), 1.7),
    Part.Circle(Vector(15.5, 15.5, 0), Vector(0, 0, 1), 1.7),
    Part.Circle(Vector(-15.5, 15.5, 0), Vector(0, 0, 1), 1.7),
], False)
sketch7.addConstraint([
    Sketcher.Constraint("Equal", 0, 1),
    Sketcher.Constraint("Equal", 1, 2),
    Sketcher.Constraint("Equal", 2, 3),
    Sketcher.Constraint("Symmetric", 0, 3, 2, 3, -1, 1),
    Sketcher.Constraint("Symmetric", 1, 3, 3, 3, -1, 1),
    Sketcher.Constraint("Symmetric", 0, 3, 1, 3, -2),
    Sketcher.Constraint("Diameter", 0, 3.4),
    Sketcher.Constraint("DistanceX", 0, 3, 1, 3, 31.0),
    Sketcher.Constraint("DistanceY", 1, 3, 2, 3, 31.0),
])
sketch7.setExpression("Constraints[6]", "Params.sketch7_diameter")
doc.recompute()
hole2 = body.newObject("PartDesign::Hole", "Hole001")
hole2.Profile = sketch7
hole2.ThreadType = "None"
hole2.setExpression("Diameter", "Params.hole2_diameter")
hole2.DepthType = "Dimension"
hole2.setExpression("Depth", "Params.hole2_depth")
hole2.DrillPoint = "Flat"
hole2.HoleCutType = "Countersink"
hole2.setExpression("HoleCutDiameter", "Params.hole2_csink_diameter")
hole2.HoleCutCountersinkAngle = 90
hole2.Reversed = True

# Sketch on XZ plane
sketch8 = body.newObject("Sketcher::SketchObject", "Sketch007")
sketch8.AttachmentSupport = (doc.getObject("XZ_Plane"), [""])
sketch8.MapMode = "FlatFace"
sketch8.AttachmentOffset = App.Placement(Vector(0, 0, -47.3), App.Rotation())
sketch8.addGeometry(Part.Circle(Vector(0, 0, 0), Vector(0, 0, 1), 15), False)
sketch8.addConstraint([
    Sketcher.Constraint("Coincident", 0, 3, -1, 1),
    Sketcher.Constraint("Diameter", 0, 30.0),
])
sketch8.setExpression("Constraints[1]", "Params.sketch8_diameter")
pocket1 = body.newObject("PartDesign::Pocket", "Pocket")
pocket1.Profile = sketch8
pocket1.setExpression("Length", "Params.pocket1_length")
pocket1.Reversed = True

# Sketch on XZ plane
sketch9 = body.newObject("Sketcher::SketchObject", "Sketch008")
sketch9.AttachmentSupport = (doc.getObject("XZ_Plane"), [""])
sketch9.MapMode = "FlatFace"
sketch9.AttachmentOffset = App.Placement(Vector(0, 0, -46.7), App.Rotation())
sketch9.addGeometry([
    Part.Circle(Vector(0, 0, 0), Vector(0, 0, 1), 11),
    Part.Circle(Vector(0, 0, 0), Vector(0, 0, 1), 3.25),
], False)
sketch9.addConstraint([
    Sketcher.Constraint("Coincident", 0, 3, -1, 1),
    Sketcher.Constraint("Coincident", 1, 3, -1, 1),
    Sketcher.Constraint("Diameter", 0, 22.0),
    Sketcher.Constraint("Diameter", 1, 6.5),
])
sketch9.setExpression("Constraints[2]", "Params.sketch9_diameter")
sketch9.setExpression("Constraints[3]", "Params.sketch9_diameter2")
pad6 = body.newObject("PartDesign::Pad", "Pad005")
pad6.Profile = sketch9
pad6.setExpression("Length", "Params.pad6_length")
pad6.Reversed = True
doc.recompute()

fillet2 = body.newObject("PartDesign::Fillet", "Fillet001")
fillet2.Base = (pad6, edges_at(pad6, [
    (0, 46.7, -15),
    (0, 47.3, -15),
    (0, 46.7, -3.25),
    (0, 46.7, -11),
    (0, 48.7, -3.25),
]))
fillet2.setExpression("Radius", "Params.fillet2_radius")

# Sketch on XZ plane
sketch10 = body.newObject("Sketcher::SketchObject", "Sketch009")
sketch10.AttachmentSupport = (doc.getObject("XZ_Plane"), [""])
sketch10.MapMode = "FlatFace"
sketch10.AttachmentOffset = App.Placement(Vector(0, 0, -46.7), App.Rotation())
sketch10.addGeometry(Part.Circle(Vector(0, 0, 0), Vector(0, 0, 1), 2.5), False)
sketch10.addConstraint([
    Sketcher.Constraint("Coincident", 0, 3, -1, 1),
    Sketcher.Constraint("Diameter", 0, 5.0),
])
sketch10.setExpression("Constraints[1]", "Params.sketch10_diameter")
pad7 = body.newObject("PartDesign::Pad", "Pad006")
pad7.Profile = sketch10
pad7.setExpression("Length", "Params.pad7_length")
pad7.Reversed = True
doc.recompute()

fillet3 = body.newObject("PartDesign::Fillet", "Fillet002")
fillet3.Base = (pad7, edges_at(pad7, [(0, 72.7, 2.5)]))
fillet3.setExpression("Radius", "Params.fillet3_radius")

doc.recompute()
